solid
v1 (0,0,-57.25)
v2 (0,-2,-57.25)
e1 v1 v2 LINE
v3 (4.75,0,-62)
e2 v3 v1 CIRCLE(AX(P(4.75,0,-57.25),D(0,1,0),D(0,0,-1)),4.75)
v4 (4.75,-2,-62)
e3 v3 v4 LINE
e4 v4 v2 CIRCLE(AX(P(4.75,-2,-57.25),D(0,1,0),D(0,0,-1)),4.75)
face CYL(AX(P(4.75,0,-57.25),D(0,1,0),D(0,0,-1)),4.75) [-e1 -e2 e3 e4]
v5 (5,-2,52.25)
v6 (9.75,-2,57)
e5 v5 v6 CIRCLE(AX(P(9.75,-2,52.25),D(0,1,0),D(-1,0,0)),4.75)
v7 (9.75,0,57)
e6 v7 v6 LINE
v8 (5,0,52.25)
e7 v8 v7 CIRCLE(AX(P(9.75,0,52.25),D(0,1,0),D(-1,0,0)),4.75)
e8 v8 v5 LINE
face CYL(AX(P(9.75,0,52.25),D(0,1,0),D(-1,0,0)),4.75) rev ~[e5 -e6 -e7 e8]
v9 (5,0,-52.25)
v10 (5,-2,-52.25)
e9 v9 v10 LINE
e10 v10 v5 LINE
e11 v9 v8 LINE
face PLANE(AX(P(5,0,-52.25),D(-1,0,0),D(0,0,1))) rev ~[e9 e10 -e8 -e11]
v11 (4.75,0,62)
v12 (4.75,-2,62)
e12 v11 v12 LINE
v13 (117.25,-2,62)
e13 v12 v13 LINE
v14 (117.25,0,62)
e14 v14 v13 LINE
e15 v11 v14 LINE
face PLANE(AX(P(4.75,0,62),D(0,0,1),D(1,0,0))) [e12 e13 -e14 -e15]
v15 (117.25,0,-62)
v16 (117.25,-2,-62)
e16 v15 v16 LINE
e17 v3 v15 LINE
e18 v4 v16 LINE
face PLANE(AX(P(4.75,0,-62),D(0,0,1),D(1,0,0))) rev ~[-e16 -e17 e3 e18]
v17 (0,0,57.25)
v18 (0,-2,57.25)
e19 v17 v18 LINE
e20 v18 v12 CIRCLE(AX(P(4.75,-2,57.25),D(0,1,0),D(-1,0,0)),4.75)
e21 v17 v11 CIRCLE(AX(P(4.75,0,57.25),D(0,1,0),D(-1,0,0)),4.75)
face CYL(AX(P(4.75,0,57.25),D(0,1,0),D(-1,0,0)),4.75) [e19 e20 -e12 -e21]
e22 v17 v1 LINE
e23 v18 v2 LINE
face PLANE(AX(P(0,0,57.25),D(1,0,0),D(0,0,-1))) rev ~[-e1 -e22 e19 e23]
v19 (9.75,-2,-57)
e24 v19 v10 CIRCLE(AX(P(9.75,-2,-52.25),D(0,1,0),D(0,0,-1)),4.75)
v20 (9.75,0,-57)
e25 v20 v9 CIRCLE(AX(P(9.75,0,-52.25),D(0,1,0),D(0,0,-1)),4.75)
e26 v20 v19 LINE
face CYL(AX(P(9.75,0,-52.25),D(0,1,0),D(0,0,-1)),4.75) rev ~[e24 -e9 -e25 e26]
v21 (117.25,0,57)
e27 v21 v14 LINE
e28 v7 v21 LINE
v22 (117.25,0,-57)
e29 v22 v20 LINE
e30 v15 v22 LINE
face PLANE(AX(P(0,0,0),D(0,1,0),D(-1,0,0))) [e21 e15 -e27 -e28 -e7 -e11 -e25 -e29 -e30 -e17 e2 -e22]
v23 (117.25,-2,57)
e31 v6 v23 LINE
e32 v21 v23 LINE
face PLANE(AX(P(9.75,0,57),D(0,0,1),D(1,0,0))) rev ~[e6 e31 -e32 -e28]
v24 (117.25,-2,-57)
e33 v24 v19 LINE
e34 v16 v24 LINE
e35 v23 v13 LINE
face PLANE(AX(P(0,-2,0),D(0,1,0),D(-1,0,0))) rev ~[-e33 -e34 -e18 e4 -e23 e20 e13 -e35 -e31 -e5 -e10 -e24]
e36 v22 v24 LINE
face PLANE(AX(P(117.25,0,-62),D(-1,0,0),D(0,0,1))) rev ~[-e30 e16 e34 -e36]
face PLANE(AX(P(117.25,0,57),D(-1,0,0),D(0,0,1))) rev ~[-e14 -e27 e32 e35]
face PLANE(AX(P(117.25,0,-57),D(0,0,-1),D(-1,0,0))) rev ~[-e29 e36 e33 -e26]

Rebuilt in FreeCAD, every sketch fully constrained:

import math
import FreeCAD as App
import Part
import Sketcher
Q = App.Units.Quantity

doc = App.newDocument("Part")
body = doc.addObject("PartDesign::Body", "Body")

# Sketch on XZ plane
sketch1 = body.newObject("Sketcher::SketchObject", "Sketch")
sketch1.AttachmentSupport = (doc.getObject("XZ_Plane"), [""])
sketch1.MapMode = "FlatFace"
sketch1.addGeometry([
    Part.LineSegment(App.Vector(9.75, -57, 0), App.Vector(117.25, -57, 0)),  # 0
    Part.LineSegment(App.Vector(117.25, -57, 0), App.Vector(117.25, -62, 0)),  # 1
    Part.LineSegment(App.Vector(117.25, -62, 0), App.Vector(4.75, -62, 0)),  # 2
    Part.ArcOfCircle(Part.Circle(App.Vector(4.75, -57.25, 0), App.Vector(0, 0, 1), 4.75), math.radians(180), math.radians(270)),  # 3
    Part.LineSegment(App.Vector(0, -57.25, 0), App.Vector(0, 57.25, 0)),  # 4
    Part.ArcOfCircle(Part.Circle(App.Vector(4.75, 57.25, 0), App.Vector(0, 0, 1), 4.75), math.radians(90), math.radians(180)),  # 5
    Part.LineSegment(App.Vector(4.75, 62, 0), App.Vector(117.25, 62, 0)),  # 6
    Part.LineSegment(App.Vector(117.25, 62, 0), App.Vector(117.25, 57, 0)),  # 7
    Part.LineSegment(App.Vector(117.25, 57, 0), App.Vector(9.75, 57, 0)),  # 8
    Part.ArcOfCircle(Part.Circle(App.Vector(9.75, 52.25, 0), App.Vector(0, 0, 1), 4.75), math.radians(90), math.radians(180)),  # 9
    Part.LineSegment(App.Vector(5, 52.25, 0), App.Vector(5, -52.25, 0)),  # 10
    Part.ArcOfCircle(Part.Circle(App.Vector(9.75, -52.25, 0), App.Vector(0, 0, 1), 4.75), math.radians(180), math.radians(270)),  # 11
], False)
sketch1.addConstraint([
    Sketcher.Constraint("Coincident", 0, 2, 1, 1),
    Sketcher.Constraint("Coincident", 1, 2, 2, 1),
    Sketcher.Constraint("Tangent", 2, 2, 3, 2),
    Sketcher.Constraint("Tangent", 3, 1, 4, 1),
    Sketcher.Constraint("Tangent", 4, 2, 5, 2),
    Sketcher.Constraint("Tangent", 5, 1, 6, 1),
    Sketcher.Constraint("Coincident", 6, 2, 7, 1),
    Sketcher.Constraint("Coincident", 7, 2, 8, 1),
    Sketcher.Constraint("Tangent", 8, 2, 9, 1),
    Sketcher.Constraint("Tangent", 9, 2, 10, 1),
    Sketcher.Constraint("Tangent", 10, 2, 11, 1),
    Sketcher.Constraint("Tangent", 11, 2, 0, 1),
    Sketcher.Constraint("Horizontal", 0),
    Sketcher.Constraint("Vertical", 1),
    Sketcher.Constraint("Horizontal", 2),
    Sketcher.Constraint("Vertical", 4),
    Sketcher.Constraint("Horizontal", 6),
    Sketcher.Constraint("Vertical", 7),
    Sketcher.Constraint("Horizontal", 8),
    Sketcher.Constraint("Vertical", 10),
    Sketcher.Constraint("Equal", 3, 5),
    Sketcher.Constraint("Equal", 5, 9),
    Sketcher.Constraint("Equal", 9, 11),
    Sketcher.Constraint("Symmetric", 3, 1, 4, 2, -1, 1),
    Sketcher.Constraint("Symmetric", 0, 2, 7, 2, -1),
    Sketcher.Constraint("DistanceY", 1, 2, 1, 1, Q("5 mm")),
    Sketcher.Constraint("Radius", 3, Q("4.75 mm")),
    Sketcher.Constraint("DistanceY", 0, 2, -1, 1, Q("57 mm")),
    Sketcher.Constraint("DistanceX", -1, 1, 9, 2, Q("5 mm")),
    Sketcher.Constraint("DistanceX", -1, 1, 0, 2, Q("117.25 mm")),
])
pad1 = body.newObject("PartDesign::Pad", "Pad")
pad1.Profile = sketch1
pad1.Length = 2

doc.recompute()
